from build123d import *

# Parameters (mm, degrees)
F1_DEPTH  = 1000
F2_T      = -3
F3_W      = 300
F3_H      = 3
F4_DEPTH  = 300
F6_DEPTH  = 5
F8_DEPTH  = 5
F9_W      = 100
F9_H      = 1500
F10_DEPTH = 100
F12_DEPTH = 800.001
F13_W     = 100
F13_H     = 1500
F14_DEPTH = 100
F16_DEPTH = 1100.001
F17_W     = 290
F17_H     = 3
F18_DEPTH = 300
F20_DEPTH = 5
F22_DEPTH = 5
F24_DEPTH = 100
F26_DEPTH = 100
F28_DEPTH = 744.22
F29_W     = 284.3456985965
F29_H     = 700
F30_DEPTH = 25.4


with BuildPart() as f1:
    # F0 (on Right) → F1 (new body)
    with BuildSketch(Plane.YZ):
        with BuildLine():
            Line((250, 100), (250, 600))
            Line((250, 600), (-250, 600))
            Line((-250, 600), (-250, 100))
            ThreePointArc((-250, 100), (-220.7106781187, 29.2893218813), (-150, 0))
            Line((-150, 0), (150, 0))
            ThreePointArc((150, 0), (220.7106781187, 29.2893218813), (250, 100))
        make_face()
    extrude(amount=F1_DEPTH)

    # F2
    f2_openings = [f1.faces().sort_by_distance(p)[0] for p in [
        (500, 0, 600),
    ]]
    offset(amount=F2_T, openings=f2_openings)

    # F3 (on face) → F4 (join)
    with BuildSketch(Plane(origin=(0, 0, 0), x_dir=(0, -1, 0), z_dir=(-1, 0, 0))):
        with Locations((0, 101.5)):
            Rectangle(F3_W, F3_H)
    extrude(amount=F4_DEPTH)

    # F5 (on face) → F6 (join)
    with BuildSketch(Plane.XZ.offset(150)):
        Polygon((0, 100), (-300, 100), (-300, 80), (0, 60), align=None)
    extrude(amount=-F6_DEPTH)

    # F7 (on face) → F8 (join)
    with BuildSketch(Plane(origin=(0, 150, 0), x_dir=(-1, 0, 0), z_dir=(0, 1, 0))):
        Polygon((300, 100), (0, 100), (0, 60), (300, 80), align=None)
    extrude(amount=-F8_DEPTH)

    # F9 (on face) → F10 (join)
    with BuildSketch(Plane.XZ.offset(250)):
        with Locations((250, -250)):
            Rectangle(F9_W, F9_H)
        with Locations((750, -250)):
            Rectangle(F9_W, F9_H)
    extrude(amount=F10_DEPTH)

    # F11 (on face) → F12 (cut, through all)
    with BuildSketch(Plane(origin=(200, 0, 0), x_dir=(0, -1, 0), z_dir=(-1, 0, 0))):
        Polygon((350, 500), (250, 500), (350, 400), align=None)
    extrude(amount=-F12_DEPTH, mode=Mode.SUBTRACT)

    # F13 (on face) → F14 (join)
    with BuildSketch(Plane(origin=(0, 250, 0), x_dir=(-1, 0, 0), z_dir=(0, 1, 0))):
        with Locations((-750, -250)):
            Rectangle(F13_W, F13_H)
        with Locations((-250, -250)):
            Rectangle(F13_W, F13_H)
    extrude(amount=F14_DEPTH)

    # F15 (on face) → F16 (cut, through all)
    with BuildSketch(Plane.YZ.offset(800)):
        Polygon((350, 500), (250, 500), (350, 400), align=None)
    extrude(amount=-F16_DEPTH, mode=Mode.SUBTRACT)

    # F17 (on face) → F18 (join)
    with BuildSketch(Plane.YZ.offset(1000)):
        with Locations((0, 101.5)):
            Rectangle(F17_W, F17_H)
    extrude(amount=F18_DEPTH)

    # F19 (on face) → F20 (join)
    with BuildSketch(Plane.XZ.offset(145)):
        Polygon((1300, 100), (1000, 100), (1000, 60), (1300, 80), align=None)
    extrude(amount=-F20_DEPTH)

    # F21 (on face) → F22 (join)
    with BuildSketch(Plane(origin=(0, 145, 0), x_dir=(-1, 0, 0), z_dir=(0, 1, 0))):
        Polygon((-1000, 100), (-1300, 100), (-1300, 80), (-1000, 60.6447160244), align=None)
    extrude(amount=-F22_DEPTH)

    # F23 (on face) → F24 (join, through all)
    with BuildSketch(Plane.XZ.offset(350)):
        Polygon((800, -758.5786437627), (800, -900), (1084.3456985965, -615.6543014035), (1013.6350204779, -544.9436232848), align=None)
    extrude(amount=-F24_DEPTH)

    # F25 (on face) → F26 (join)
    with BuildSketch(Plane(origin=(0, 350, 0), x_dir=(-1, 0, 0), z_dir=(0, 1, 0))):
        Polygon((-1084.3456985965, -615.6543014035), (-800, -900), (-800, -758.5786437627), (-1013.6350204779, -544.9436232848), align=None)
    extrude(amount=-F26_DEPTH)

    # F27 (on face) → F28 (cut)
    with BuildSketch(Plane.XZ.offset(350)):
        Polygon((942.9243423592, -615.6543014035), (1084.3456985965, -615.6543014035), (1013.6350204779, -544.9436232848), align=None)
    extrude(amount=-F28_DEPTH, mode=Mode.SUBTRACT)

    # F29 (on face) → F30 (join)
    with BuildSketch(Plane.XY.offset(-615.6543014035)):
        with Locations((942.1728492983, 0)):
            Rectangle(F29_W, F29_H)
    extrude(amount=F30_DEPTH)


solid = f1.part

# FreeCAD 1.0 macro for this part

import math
import FreeCAD as App
import Part
import Sketcher

V = App.Vector
Q = App.Units.Quantity


def faces_at(feature, points):
    """Names of the faces that lie closest to the given points."""
    faces = feature.Shape.Faces
    near = lambda p: min(range(len(faces)), key=lambda i: faces[i].distToShape(Part.Vertex(*p))[0])
    return sorted({f"Face{near(p) + 1}" for p in points})

doc = App.newDocument("Part")
params = doc.addObject("Spreadsheet::Sheet", "Params")
for row, (alias, value) in enumerate([
    ("sketch1_radius", "100 mm"),
    ("sketch1_width", "500 mm"),
    ("pad1_length", "1000 mm"),
    ("thickness_wall", "3 mm"),
    ("sketch2_width", "300 mm"),
    ("sketch2_height", "3 mm"),
    ("pad2_length", "300 mm"),
    ("sketch3_width", "300 mm"),
    ("sketch3_height", "20 mm"),
    ("sketch3_height2", "40 mm"),
    ("pad3_length", "5 mm"),
    ("sketch4_width", "300 mm"),
    ("sketch4_height", "40 mm"),
    ("sketch4_height2", "20 mm"),
    ("pad4_length", "5 mm"),
    ("sketch5_width", "100 mm"),
    ("sketch5_height", "1500 mm"),
    ("pad5_length", "100 mm"),
    ("sketch6_width", "100 mm"),
    ("sketch7_width", "100 mm"),
    ("sketch7_height", "1500 mm"),
    ("pad6_length", "100 mm"),
    ("sketch8_width", "100 mm"),
    ("sketch9_width", "290 mm"),
    ("sketch9_height", "3 mm"),
    ("pad7_length", "300 mm"),
    ("sketch10_width", "300 mm"),
    ("sketch10_height", "40 mm"),
    ("sketch10_height2", "20 mm"),
    ("pad8_length", "5 mm"),
    ("sketch11_width", "300 mm"),
    ("sketch11_height", "20 mm"),
    ("pad9_length", "5 mm"),
    ("sketch12_length", "100 mm"),
    ("pad10_length", "100 mm"),
    ("sketch13_length", "100 mm"),
    ("pad11_length", "100 mm"),
    ("sketch14_length", "100 mm"),
    ("pocket3_length", "744.22 mm"),
    ("sketch15_height", "700 mm"),
    ("pad12_length", "25.4 mm"),
], start=1):
    params.set(f"A{row}", alias)
    params.set(f"B{row}", "=" + value)
    params.setAlias(f"B{row}", alias)

body = doc.addObject("PartDesign::Body", "Body")

sketch1 = doc.addObject("Sketcher::SketchObject", "Sketch")
body.addObject(sketch1)
sketch1.AttachmentSupport = (doc.YZ_Plane, [""])
sketch1.MapMode = "FlatFace"
sketch1.addGeometry(Part.LineSegment(V(250, 100, 0), V(250, 600, 0)), False)
sketch1.addGeometry(Part.LineSegment(V(250, 600, 0), V(-250, 600, 0)), False)
sketch1.addGeometry(Part.LineSegment(V(-250, 600, 0), V(-250, 100, 0)), False)
sketch1.addGeometry(Part.ArcOfCircle(Part.Circle(V(-150, 100, 0), V(0, 0, 1), 100), math.radians(180), math.radians(270)), False)
sketch1.addGeometry(Part.LineSegment(V(-150, 0, 0), V(150, 0, 0)), False)
sketch1.addGeometry(Part.ArcOfCircle(Part.Circle(V(150, 100, 0), V(0, 0, 1), 100), math.radians(-90), math.radians(0)), False)
sketch1.addConstraint(Sketcher.Constraint("Coincident", 0, 2, 1, 1))
sketch1.addConstraint(Sketcher.Constraint("Coincident", 1, 2, 2, 1))
sketch1.addConstraint(Sketcher.Constraint("Tangent", 2, 2, 3, 1))
sketch1.addConstraint(Sketcher.Constraint("Tangent", 3, 2, 4, 1))
sketch1.addConstraint(Sketcher.Constraint("Tangent", 4, 2, 5, 1))
sketch1.addConstraint(Sketcher.Constraint("Tangent", 5, 2, 0, 1))
sketch1.addConstraint(Sketcher.Constraint("Vertical", 0))
sketch1.addConstraint(Sketcher.Constraint("Horizontal", 1))
sketch1.addConstraint(Sketcher.Constraint("Vertical", 2))
sketch1.addConstraint(Sketcher.Constraint("Horizontal", 4))
sketch1.addConstraint(Sketcher.Constraint("Equal", 3, 5))
sketch1.addConstraint(Sketcher.Constraint("Symmetric", 3, 2, 4, 2, -1, 1))
sketch1.addConstraint(Sketcher.Constraint("Equal", 1, 0))
sketch1.addConstraint(Sketcher.Constraint("Radius", 3, 100.0))
sketch1.addConstraint(Sketcher.Constraint("DistanceX", 1, 2, 1, 1, 500.0))
sketch1.setExpression("Constraints[13]", "Params.sketch1_radius")
sketch1.setExpression("Constraints[14]", "Params.sketch1_width")
pad1 = doc.addObject("PartDesign::Pad", "Pad")
body.addObject(pad1)
pad1.Profile = sketch1
pad1.setExpression("Length", "Params.pad1_length")
doc.recompute()

thickness = doc.addObject("PartDesign::Thickness", "Thickness")
body.addObject(thickness)
thickness.Base = (pad1, faces_at(pad1, [(500, 0, 600)]))
thickness.setExpression("Value", "Params.thickness_wall")
thickness.Reversed = True
thickness.Join = "Arc"

sketch2 = doc.addObject("Sketcher::SketchObject", "Sketch001")
body.addObject(sketch2)
sketch2.AttachmentSupport = (doc.YZ_Plane, [""])
sketch2.MapMode = "FlatFace"
sketch2.addGeometry(Part.LineSegment(V(150, 103, 0), V(150, 100, 0)), False)
sketch2.addGeometry(Part.LineSegment(V(150, 100, 0), V(-150, 100, 0)), False)
sketch2.addGeometry(Part.LineSegment(V(-150, 100, 0), V(-150, 103, 0)), False)
sketch2.addGeometry(Part.LineSegment(V(-150, 103, 0), V(150, 103, 0)), False)
sketch2.addConstraint(Sketcher.Constraint("Coincident", 0, 2, 1, 1))
sketch2.addConstraint(Sketcher.Constraint("Coincident", 1, 2, 2, 1))
sketch2.addConstraint(Sketcher.Constraint("Coincident", 2, 2, 3, 1))
sketch2.addConstraint(Sketcher.Constraint("Coincident", 3, 2, 0, 1))
sketch2.addConstraint(Sketcher.Constraint("Vertical", 0))
sketch2.addConstraint(Sketcher.Constraint("Horizontal", 1))
sketch2.addConstraint(Sketcher.Constraint("Vertical", 2))
sketch2.addConstraint(Sketcher.Constraint("Horizontal", 3))
sketch2.addConstraint(Sketcher.Constraint("DistanceX", 1, 2, 1, 1, 300.0))
sketch2.addConstraint(Sketcher.Constraint("DistanceY", 0, 2, 0, 1, 3.0))
sketch2.addConstraint(Sketcher.Constraint("DistanceX", -1, 1, 0, 2, 150.0))
sketch2.addConstraint(Sketcher.Constraint("DistanceY", -1, 1, 0, 2, 100.0))
sketch2.setExpression("Constraints[8]", "Params.sketch2_width")
sketch2.setExpression("Constraints[9]", "Params.sketch2_height")
pad2 = doc.addObject("PartDesign::Pad", "Pad001")
body.addObject(pad2)
pad2.Profile = sketch2
pad2.setExpression("Length", "Params.pad2_length")
pad2.Reversed = True

sketch3 = doc.addObject("Sketcher::SketchObject", "Sketch002")
body.addObject(sketch3)
sketch3.AttachmentSupport = (doc.XZ_Plane, [""])
sketch3.MapMode = "FlatFace"
sketch3.AttachmentOffset = App.Placement(V(0, 0, 150), App.Rotation())
sketch3.addGeometry(Part.LineSegment(V(0, 100, 0), V(-300, 100, 0)), False)
sketch3.addGeometry(Part.LineSegment(V(-300, 100, 0), V(-300, 80, 0)), False)
sketch3.addGeometry(Part.LineSegment(V(-300, 80, 0), V(0, 60, 0)), False)
sketch3.addGeometry(Part.LineSegment(V(0, 60, 0), V(0, 100, 0)), False)
sketch3.addConstraint(Sketcher.Constraint("Coincident", 0, 2, 1, 1))
sketch3.addConstraint(Sketcher.Constraint("Coincident", 1, 2, 2, 1))
sketch3.addConstraint(Sketcher.Constraint("Coincident", 2, 2, 3, 1))
sketch3.addConstraint(Sketcher.Constraint("Coincident", 3, 2, 0, 1))
sketch3.addConstraint(Sketcher.Constraint("Horizontal", 0))
sketch3.addConstraint(Sketcher.Constraint("Vertical", 1))
sketch3.addConstraint(Sketcher.Constraint("Vertical", 3))
sketch3.addConstraint(Sketcher.Constraint("PointOnObject", 2, 2, -2))
sketch3.addConstraint(Sketcher.Constraint("DistanceX", 0, 2, 0, 1, 300.0))
sketch3.addConstraint(Sketcher.Constraint("DistanceY", 1, 2, 1, 1, 20.0))
sketch3.addConstraint(Sketcher.Constraint("DistanceY", 3, 1, 3, 2, 40.0))
sketch3.addConstraint(Sketcher.Constraint("DistanceY", -1, 1, 0, 2, 100.0))
sketch3.setExpression("Constraints[8]", "Params.sketch3_width")
sketch3.setExpression("Constraints[9]", "Params.sketch3_height")
sketch3.setExpression("Constraints[10]", "Params.sketch3_height2")
pad3 = doc.addObject("PartDesign::Pad", "Pad002")
body.addObject(pad3)
pad3.Profile = sketch3
pad3.setExpression("Length", "Params.pad3_length")
pad3.Reversed = True

sketch4 = doc.addObject("Sketcher::SketchObject", "Sketch003")
body.addObject(sketch4)
sketch4.AttachmentSupport = (doc.XZ_Plane, [""])
sketch4.MapMode = "FlatFace"
sketch4.AttachmentOffset = App.Placement(V(0, 0, -150), App.Rotation())
sketch4.addGeometry(Part.LineSegment(V(-300, 100, 0), V(0, 100, 0)), False)
sketch4.addGeometry(Part.LineSegment(V(0, 100, 0), V(0, 60, 0)), False)
sketch4.addGeometry(Part.LineSegment(V(0, 60, 0), V(-300, 80, 0)), False)
sketch4.addGeometry(Part.LineSegment(V(-300, 80, 0), V(-300, 100, 0)), False)
sketch4.addConstraint(Sketcher.Constraint("Coincident", 0, 2, 1, 1))
sketch4.addConstraint(Sketcher.Constraint("Coincident", 1, 2, 2, 1))
sketch4.addConstraint(Sketcher.Constraint("Coincident", 2, 2, 3, 1))
sketch4.addConstraint(Sketcher.Constraint("Coincident", 3, 2, 0, 1))
sketch4.addConstraint(Sketcher.Constraint("Horizontal", 0))
sketch4.addConstraint(Sketcher.Constraint("Vertical", 1))
sketch4.addConstraint(Sketcher.Constraint("Vertical", 3))
sketch4.addConstraint(Sketcher.Constraint("PointOnObject", 0, 2, -2))
sketch4.addConstraint(Sketcher.Constraint("DistanceX", 0, 1, 0, 2, 300.0))
sketch4.addConstraint(Sketcher.Constraint("DistanceY", 1, 2, 1, 1, 40.0))
sketch4.addConstraint(Sketcher.Constraint("DistanceY", 3, 1, 3, 2, 20.0))
sketch4.addConstraint(Sketcher.Constraint("DistanceY", -1, 1, 0, 2, 100.0))
sketch4.setExpression("Constraints[8]", "Params.sketch4_width")
sketch4.setExpression("Constraints[9]", "Params.sketch4_height")
sketch4.setExpression("Constraints[10]", "Params.sketch4_height2")
pad4 = doc.addObject("PartDesign::Pad", "Pad003")
body.addObject(pad4)
pad4.Profile = sketch4
pad4.setExpression("Length", "Params.pad4_length")

sketch5 = doc.addObject("Sketcher::SketchObject", "Sketch004")
body.addObject(sketch5)
sketch5.AttachmentSupport = (doc.XZ_Plane, [""])
sketch5.MapMode = "FlatFace"
sketch5.AttachmentOffset = App.Placement(V(0, 0, 250), App.Rotation())
sketch5.addGeometry(Part.LineSegment(V(200, 500, 0), V(200, -1000, 0)), False)
sketch5.addGeometry(Part.LineSegment(V(200, -1000, 0), V(300, -1000, 0)), False)
sketch5.addGeometry(Part.LineSegment(V(300, -1000, 0), V(300, 500, 0)), False)
sketch5.addGeometry(Part.LineSegment(V(300, 500, 0), V(200, 500, 0)), False)
sketch5.addGeometry(Part.LineSegment(V(700, 500, 0), V(700, -1000, 0)), False)
sketch5.addGeometry(Part.LineSegment(V(700, -1000, 0), V(800, -1000, 0)), False)
sketch5.addGeometry(Part.LineSegment(V(800, -1000, 0), V(800, 500, 0)), False)
sketch5.addGeometry(Part.LineSegment(V(800, 500, 0), V(700, 500, 0)), False)
sketch5.addConstraint(Sketcher.Constraint("Coincident", 0, 2, 1, 1))
sketch5.addConstraint(Sketcher.Constraint("Coincident", 1, 2, 2, 1))
sketch5.addConstraint(Sketcher.Constraint("Coincident", 2, 2, 3, 1))
sketch5.addConstraint(Sketcher.Constraint("Coincident", 3, 2, 0, 1))
sketch5.addConstraint(Sketcher.Constraint("Coincident", 4, 2, 5, 1))
sketch5.addConstraint(Sketcher.Constraint("Coincident", 5, 2, 6, 1))
sketch5.addConstraint(Sketcher.Constraint("Coincident", 6, 2, 7, 1))
sketch5.addConstraint(Sketcher.Constraint("Coincident", 7, 2, 4, 1))
sketch5.addConstraint(Sketcher.Constraint("Vertical", 0))
sketch5.addConstraint(Sketcher.Constraint("Horizontal", 1))
sketch5.addConstraint(Sketcher.Constraint("Vertical", 2))
sketch5.addConstraint(Sketcher.Constraint("Horizontal", 3))
sketch5.addConstraint(Sketcher.Constraint("Vertical", 4))
sketch5.addConstraint(Sketcher.Constraint("Horizontal", 5))
sketch5.addConstraint(Sketcher.Constraint("Vertical", 6))
sketch5.addConstraint(Sketcher.Constraint("Horizontal", 7))
sketch5.addConstraint(Sketcher.Constraint("Horizontal", 1, 2, 4, 2))
sketch5.addConstraint(Sketcher.Constraint("Horizontal", 3, 2, 6, 2))
sketch5.addConstraint(Sketcher.Constraint("Equal", 3, 5))
sketch5.addConstraint(Sketcher.Constraint("DistanceX", 1, 1, 1, 2, 100.0))
sketch5.addConstraint(Sketcher.Constraint("DistanceY", 0, 2, 0, 1, 1500.0))
sketch5.addConstraint(Sketcher.Constraint("DistanceX", -1, 1, 0, 2, 200.0))
sketch5.addConstraint(Sketcher.Constraint("DistanceY", 0, 2, -1, 1, 1000.0))
sketch5.addConstraint(Sketcher.Constraint("DistanceX", -1, 1, 4, 2, 700.0))
sketch5.setExpression("Constraints[19]", "Params.sketch5_width")
sketch5.setExpression("Constraints[20]", "Params.sketch5_height")
pad5 = doc.addObject("PartDesign::Pad", "Pad004")
body.addObject(pad5)
pad5.Profile = sketch5
pad5.setExpression("Length", "Params.pad5_length")

sketch6 = doc.addObject("Sketcher::SketchObject", "Sketch005")
body.addObject(sketch6)
sketch6.AttachmentSupport = (doc.YZ_Plane, [""])
sketch6.MapMode = "FlatFace"
sketch6.AttachmentOffset = App.Placement(V(0, 0, 200), App.Rotation())
sketch6.addGeometry(Part.LineSegment(V(-350, 500, 0), V(-250, 500, 0)), False)
sketch6.addGeometry(Part.LineSegment(V(-250, 500, 0), V(-350, 400, 0)), False)
sketch6.addGeometry(Part.LineSegment(V(-350, 400, 0), V(-350, 500, 0)), False)
sketch6.addConstraint(Sketcher.Constraint("Coincident", 0, 2, 1, 1))
sketch6.addConstraint(Sketcher.Constraint("Coincident", 1, 2, 2, 1))
sketch6.addConstraint(Sketcher.Constraint("Coincident", 2, 2, 0, 1))
sketch6.addConstraint(Sketcher.Constraint("Horizontal", 0))
sketch6.addConstraint(Sketcher.Constraint("Vertical", 2))
sketch6.addConstraint(Sketcher.Constraint("Equal", 0, 2))
sketch6.addConstraint(Sketcher.Constraint("DistanceX", 0, 1, 0, 2, 100.0))
sketch6.addConstraint(Sketcher.Constraint("DistanceX", 0, 2, -1, 1, 250.0))
sketch6.addConstraint(Sketcher.Constraint("DistanceY", -1, 1, 0, 2, 500.0))
sketch6.setExpression("Constraints[6]", "Params.sketch6_width")
pocket1 = doc.addObject("PartDesign::Pocket", "Pocket")
body.addObject(pocket1)
pocket1.Profile = sketch6
pocket1.Type = "ThroughAll"
pocket1.Reversed = True

sketch7 = doc.addObject("Sketcher::SketchObject", "Sketch006")
body.addObject(sketch7)
sketch7.AttachmentSupport = (doc.XZ_Plane, [""])
sketch7.MapMode = "FlatFace"
sketch7.AttachmentOffset = App.Placement(V(0, 0, -250), App.Rotation())
sketch7.addGeometry(Part.LineSegment(V(800, 500, 0), V(800, -1000, 0)), False)
sketch7.addGeometry(Part.LineSegment(V(800, -1000, 0), V(700, -1000, 0)), False)
sketch7.addGeometry(Part.LineSegment(V(700, -1000, 0), V(700, 500, 0)), False)
sketch7.addGeometry(Part.LineSegment(V(700, 500, 0), V(800, 500, 0)), False)
sketch7.addGeometry(Part.LineSegment(V(300, 500, 0), V(300, -1000, 0)), False)
sketch7.addGeometry(Part.LineSegment(V(300, -1000, 0), V(200, -1000, 0)), False)
sketch7.addGeometry(Part.LineSegment(V(200, -1000, 0), V(200, 500, 0)), False)
sketch7.addGeometry(Part.LineSegment(V(200, 500, 0), V(300, 500, 0)), False)
sketch7.addConstraint(Sketcher.Constraint("Coincident", 0, 2, 1, 1))
sketch7.addConstraint(Sketcher.Constraint("Coincident", 1, 2, 2, 1))
sketch7.addConstraint(Sketcher.Constraint("Coincident", 2, 2, 3, 1))
sketch7.addConstraint(Sketcher.Constraint("Coincident", 3, 2, 0, 1))
sketch7.addConstraint(Sketcher.Constraint("Coincident", 4, 2, 5, 1))
sketch7.addConstraint(Sketcher.Constraint("Coincident", 5, 2, 6, 1))
sketch7.addConstraint(Sketcher.Constraint("Coincident", 6, 2, 7, 1))
sketch7.addConstraint(Sketcher.Constraint("Coincident", 7, 2, 4, 1))
sketch7.addConstraint(Sketcher.Constraint("Vertical", 0))
sketch7.addConstraint(Sketcher.Constraint("Horizontal", 1))
sketch7.addConstraint(Sketcher.Constraint("Vertical", 2))
sketch7.addConstraint(Sketcher.Constraint("Horizontal", 3))
sketch7.addConstraint(Sketcher.Constraint("Vertical", 4))
sketch7.addConstraint(Sketcher.Constraint("Horizontal", 5))
sketch7.addConstraint(Sketcher.Constraint("Vertical", 6))
sketch7.addConstraint(Sketcher.Constraint("Horizontal", 7))
sketch7.addConstraint(Sketcher.Constraint("Horizontal", 1, 2, 4, 2))
sketch7.addConstraint(Sketcher.Constraint("Horizontal", 3, 2, 6, 2))
sketch7.addConstraint(Sketcher.Constraint("Equal", 3, 5))
sketch7.addConstraint(Sketcher.Constraint("DistanceX", 1, 2, 1, 1, 100.0))
sketch7.addConstraint(Sketcher.Constraint("DistanceY", 0, 2, 0, 1, 1500.0))
sketch7.addConstraint(Sketcher.Constraint("DistanceX", -1, 1, 0, 2, 800.0))
sketch7.addConstraint(Sketcher.Constraint("DistanceY", 0, 2, -1, 1, 1000.0))
sketch7.addConstraint(Sketcher.Constraint("DistanceX", -1, 1, 4, 2, 300.0))
sketch7.setExpression("Constraints[19]", "Params.sketch7_width")
sketch7.setExpression("Constraints[20]", "Params.sketch7_height")
pad6 = doc.addObject("PartDesign::Pad", "Pad005")
body.addObject(pad6)
pad6.Profile = sketch7
pad6.setExpression("Length", "Params.pad6_length")
pad6.Reversed = True

sketch8 = doc.addObject("Sketcher::SketchObject", "Sketch007")
body.addObject(sketch8)
sketch8.AttachmentSupport = (doc.YZ_Plane, [""])
sketch8.MapMode = "FlatFace"
sketch8.AttachmentOffset = App.Placement(V(0, 0, 800), App.Rotation())
sketch8.addGeometry(Part.LineSegment(V(350, 500, 0), V(250, 500, 0)), False)
sketch8.addGeometry(Part.LineSegment(V(250, 500, 0), V(350, 400, 0)), False)
sketch8.addGeometry(Part.LineSegment(V(350, 400, 0), V(350, 500, 0)), False)
sketch8.addConstraint(Sketcher.Constraint("Coincident", 0, 2, 1, 1))
sketch8.addConstraint(Sketcher.Constraint("Coincident", 1, 2, 2, 1))
sketch8.addConstraint(Sketcher.Constraint("Coincident", 2, 2, 0, 1))
sketch8.addConstraint(Sketcher.Constraint("Horizontal", 0))
sketch8.addConstraint(Sketcher.Constraint("Vertical", 2))
sketch8.addConstraint(Sketcher.Constraint("Equal", 0, 2))
sketch8.addConstraint(Sketcher.Constraint("DistanceX", 0, 2, 0, 1, 100.0))
sketch8.addConstraint(Sketcher.Constraint("DistanceX", -1, 1, 0, 2, 250.0))
sketch8.addConstraint(Sketcher.Constraint("DistanceY", -1, 1, 0, 2, 500.0))
sketch8.setExpression("Constraints[6]", "Params.sketch8_width")
pocket2 = doc.addObject("PartDesign::Pocket", "Pocket001")
body.addObject(pocket2)
pocket2.Profile = sketch8
pocket2.Type = "ThroughAll"

sketch9 = doc.addObject("Sketcher::SketchObject", "Sketch008")
body.addObject(sketch9)
sketch9.AttachmentSupport = (doc.YZ_Plane, [""])
sketch9.MapMode = "FlatFace"
sketch9.AttachmentOffset = App.Placement(V(0, 0, 1000), App.Rotation())
sketch9.addGeometry(Part.LineSegment(V(-145, 103, 0), V(-145, 100, 0)), False)
sketch9.addGeometry(Part.LineSegment(V(-145, 100, 0), V(145, 100, 0)), False)
sketch9.addGeometry(Part.LineSegment(V(145, 100, 0), V(145, 103, 0)), False)
sketch9.addGeometry(Part.LineSegment(V(145, 103, 0), V(-145, 103, 0)), False)
sketch9.addConstraint(Sketcher.Constraint("Coincident", 0, 2, 1, 1))
sketch9.addConstraint(Sketcher.Constraint("Coincident", 1, 2, 2, 1))
sketch9.addConstraint(Sketcher.Constraint("Coincident", 2, 2, 3, 1))
sketch9.addConstraint(Sketcher.Constraint("Coincident", 3, 2, 0, 1))
sketch9.addConstraint(Sketcher.Constraint("Vertical", 0))
sketch9.addConstraint(Sketcher.Constraint("Horizontal", 1))
sketch9.addConstraint(Sketcher.Constraint("Vertical", 2))
sketch9.addConstraint(Sketcher.Constraint("Horizontal", 3))
sketch9.addConstraint(Sketcher.Constraint("DistanceX", 1, 1, 1, 2, 290.0))
sketch9.addConstraint(Sketcher.Constraint("DistanceY", 0, 2, 0, 1, 3.0))
sketch9.addConstraint(Sketcher.Constraint("DistanceX", 0, 2, -1, 1, 145.0))
sketch9.addConstraint(Sketcher.Constraint("DistanceY", -1, 1, 0, 2, 100.0))
sketch9.setExpression("Constraints[8]", "Params.sketch9_width")
sketch9.setExpression("Constraints[9]", "Params.sketch9_height")
pad7 = doc.addObject("PartDesign::Pad", "Pad006")
body.addObject(pad7)
pad7.Profile = sketch9
pad7.setExpression("Length", "Params.pad7_length")

sketch10 = doc.addObject("Sketcher::SketchObject", "Sketch009")
body.addObject(sketch10)
sketch10.AttachmentSupport = (doc.XZ_Plane, [""])
sketch10.MapMode = "FlatFace"
sketch10.AttachmentOffset = App.Placement(V(0, 0, 145), App.Rotation())
sketch10.addGeometry(Part.LineSegment(V(1300, 100, 0), V(1000, 100, 0)), False)
sketch10.addGeometry(Part.LineSegment(V(1000, 100, 0), V(1000, 60, 0)), False)
sketch10.addGeometry(Part.LineSegment(V(1000, 60, 0), V(1300, 80, 0)), False)
sketch10.addGeometry(Part.LineSegment(V(1300, 80, 0), V(1300, 100, 0)), False)
sketch10.addConstraint(Sketcher.Constraint("Coincident", 0, 2, 1, 1))
sketch10.addConstraint(Sketcher.Constraint("Coincident", 1, 2, 2, 1))
sketch10.addConstraint(Sketcher.Constraint("Coincident", 2, 2, 3, 1))
sketch10.addConstraint(Sketcher.Constraint("Coincident", 3, 2, 0, 1))
sketch10.addConstraint(Sketcher.Constraint("Horizontal", 0))
sketch10.addConstraint(Sketcher.Constraint("Vertical", 1))
sketch10.addConstraint(Sketcher.Constraint("Vertical", 3))
sketch10.addConstraint(Sketcher.Constraint("DistanceX", 0, 2, 0, 1, 300.0))
sketch10.addConstraint(Sketcher.Constraint("DistanceY", 1, 2, 1, 1, 40.0))
sketch10.addConstraint(Sketcher.Constraint("DistanceY", 3, 1, 3, 2, 20.0))
sketch10.addConstraint(Sketcher.Constraint("DistanceX", -1, 1, 0, 2, 1000.0))
sketch10.addConstraint(Sketcher.Constraint("DistanceY", -1, 1, 0, 2, 100.0))
sketch10.setExpression("Constraints[7]", "Params.sketch10_width")
sketch10.setExpression("Constraints[8]", "Params.sketch10_height")
sketch10.setExpression("Constraints[9]", "Params.sketch10_height2")
pad8 = doc.addObject("PartDesign::Pad", "Pad007")
body.addObject(pad8)
pad8.Profile = sketch10
pad8.setExpression("Length", "Params.pad8_length")
pad8.Reversed = True

sketch11 = doc.addObject("Sketcher::SketchObject", "Sketch010")
body.addObject(sketch11)
sketch11.AttachmentSupport = (doc.XZ_Plane, [""])
sketch11.MapMode = "FlatFace"
sketch11.AttachmentOffset = App.Placement(V(0, 0, -145), App.Rotation())
sketch11.addGeometry(Part.LineSegment(V(1000, 100, 0), V(1300, 100, 0)), False)
sketch11.addGeometry(Part.LineSegment(V(1300, 100, 0), V(1300, 80, 0)), False)
sketch11.addGeometry(Part.LineSegment(V(1300, 80, 0), V(1000, 61, 0)), False)
sketch11.addGeometry(Part.LineSegment(V(1000, 61, 0), V(1000, 100, 0)), False)
sketch11.addConstraint(Sketcher.Constraint("Coincident", 0, 2, 1, 1))
sketch11.addConstraint(Sketcher.Constraint("Coincident", 1, 2, 2, 1))
sketch11.addConstraint(Sketcher.Constraint("Coincident", 2, 2, 3, 1))
sketch11.addConstraint(Sketcher.Constraint("Coincident", 3, 2, 0, 1))
sketch11.addConstraint(Sketcher.Constraint("Horizontal", 0))
sketch11.addConstraint(Sketcher.Constraint("Vertical", 1))
sketch11.addConstraint(Sketcher.Constraint("Vertical", 3))
sketch11.addConstraint(Sketcher.Constraint("DistanceX", 0, 1, 0, 2, 300.0))
sketch11.addConstraint(Sketcher.Constraint("DistanceY", 1, 2, 1, 1, 20.0))
sketch11.addConstraint(Sketcher.Constraint("DistanceX", -1, 1, 0, 2, 1300.0))
sketch11.addConstraint(Sketcher.Constraint("DistanceY", -1, 1, 0, 2, 100.0))
sketch11.addConstraint(Sketcher.Constraint("Distance", 2, 300.62373))
sketch11.setExpression("Constraints[7]", "Params.sketch11_width")
sketch11.setExpression("Constraints[8]", "Params.sketch11_height")
pad9 = doc.addObject("PartDesign::Pad", "Pad008")
body.addObject(pad9)
pad9.Profile = sketch11
pad9.setExpression("Length", "Params.pad9_length")

sketch12 = doc.addObject("Sketcher::SketchObject", "Sketch011")
body.addObject(sketch12)
sketch12.AttachmentSupport = (doc.XZ_Plane, [""])
sketch12.MapMode = "FlatFace"
sketch12.AttachmentOffset = App.Placement(V(0, 0, 350), App.Rotation())
sketch12.addGeometry(Part.LineSegment(V(800, -759, 0), V(800, -900, 0)), False)
sketch12.addGeometry(Part.LineSegment(V(800, -900, 0), V(1084, -616, 0)), False)
sketch12.addGeometry(Part.LineSegment(V(1084, -616, 0), V(1014, -545, 0)), False)
sketch12.addGeometry(Part.LineSegment(V(1014, -545, 0), V(800, -759, 0)), False)
sketch12.addConstraint(Sketcher.Constraint("Coincident", 0, 2, 1, 1))
sketch12.addConstraint(Sketcher.Constraint("Coincident", 1, 2, 2, 1))
sketch12.addConstraint(Sketcher.Constraint("Coincident", 2, 2, 3, 1))
sketch12.addConstraint(Sketcher.Constraint("Coincident", 3, 2, 0, 1))
sketch12.addConstraint(Sketcher.Constraint("Vertical", 0))
sketch12.addConstraint(Sketcher.Constraint("Perpendicular", 1, 2))
sketch12.addConstraint(Sketcher.Constraint("Perpendicular", 2, 3))
sketch12.addConstraint(Sketcher.Constraint("Angle", 1, Q("45 deg")))
sketch12.addConstraint(Sketcher.Constraint("Distance", 2, 100.0))
sketch12.addConstraint(Sketcher.Constraint("DistanceX", -1, 1, 0, 2, 800.0))
sketch12.addConstraint(Sketcher.Constraint("DistanceY", 0, 2, -1, 1, 900.0))
sketch12.addConstraint(Sketcher.Constraint("DistanceX", -1, 1, 1, 2, 1084.345699))
sketch12.setExpression("Constraints[8]", "Params.sketch12_length")
pad10 = doc.addObject("PartDesign::Pad", "Pad009")
body.addObject(pad10)
pad10.Profile = sketch12
pad10.setExpression("Length", "Params.pad10_length")
pad10.Reversed = True

sketch13 = doc.addObject("Sketcher::SketchObject", "Sketch012")
body.addObject(sketch13)
sketch13.AttachmentSupport = (doc.XZ_Plane, [""])
sketch13.MapMode = "FlatFace"
sketch13.AttachmentOffset = App.Placement(V(0, 0, -350), App.Rotation())
sketch13.addGeometry(Part.LineSegment(V(1084, -616, 0), V(800, -900, 0)), False)
sketch13.addGeometry(Part.LineSegment(V(800, -900, 0), V(800, -759, 0)), False)
sketch13.addGeometry(Part.LineSegment(V(800, -759, 0), V(1014, -545, 0)), False)
sketch13.addGeometry(Part.LineSegment(V(1014, -545, 0), V(1084, -616, 0)), False)
sketch13.addConstraint(Sketcher.Constraint("Coincident", 0, 2, 1, 1))
sketch13.addConstraint(Sketcher.Constraint("Coincident", 1, 2, 2, 1))
sketch13.addConstraint(Sketcher.Constraint("Coincident", 2, 2, 3, 1))
sketch13.addConstraint(Sketcher.Constraint("Coincident", 3, 2, 0, 1))
sketch13.addConstraint(Sketcher.Constraint("Vertical", 1))
sketch13.addConstraint(Sketcher.Constraint("Parallel", 0, 2))
sketch13.addConstraint(Sketcher.Constraint("Perpendicular", 2, 3))
sketch13.addConstraint(Sketcher.Constraint("Angle", 0, Q("-135 deg")))
sketch13.addConstraint(Sketcher.Constraint("Distance", 3, 100.0))
sketch13.addConstraint(Sketcher.Constraint("DistanceX", -1, 1, 0, 2, 800.0))
sketch13.addConstraint(Sketcher.Constraint("DistanceY", 0, 2, -1, 1, 900.0))
sketch13.addConstraint(Sketcher.Constraint("DistanceX", -1, 1, 3, 2, 1084.345699))
sketch13.setExpression("Constraints[8]", "Params.sketch13_length")
pad11 = doc.addObject("PartDesign::Pad", "Pad010")
body.addObject(pad11)
pad11.Profile = sketch13
pad11.setExpression("Length", "Params.pad11_length")

sketch14 = doc.addObject("Sketcher::SketchObject", "Sketch013")
body.addObject(sketch14)
sketch14.AttachmentSupport = (doc.XZ_Plane, [""])
sketch14.MapMode = "FlatFace"
sketch14.AttachmentOffset = App.Placement(V(0, 0, 350), App.Rotation())
sketch14.addGeometry(Part.LineSegment(V(943, -616, 0), V(1084, -616, 0)), False)
sketch14.addGeometry(Part.LineSegment(V(1084, -616, 0), V(1014, -545, 0)), False)
sketch14.addGeometry(Part.LineSegment(V(1014, -545, 0), V(943, -616, 0)), False)
sketch14.addConstraint(Sketcher.Constraint("Coincident", 0, 2, 1, 1))
sketch14.addConstraint(Sketcher.Constraint("Coincident", 1, 2, 2, 1))
sketch14.addConstraint(Sketcher.Constraint("Coincident", 2, 2, 0, 1))
sketch14.addConstraint(Sketcher.Constraint("Horizontal", 0))
sketch14.addConstraint(Sketcher.Constraint("Perpendicular", 1, 2))
sketch14.addConstraint(Sketcher.Constraint("Equal", 1, 2))
sketch14.addConstraint(Sketcher.Constraint("Distance", 1, 100.0))
sketch14.addConstraint(Sketcher.Constraint("DistanceX", -1, 1, 0, 2, 1084.345699))
sketch14.addConstraint(Sketcher.Constraint("DistanceY", 0, 2, -1, 1, 615.654301))
sketch14.setExpression("Constraints[6]", "Params.sketch14_length")
pocket3 = doc.addObject("PartDesign::Pocket", "Pocket002")
body.addObject(pocket3)
pocket3.Profile = sketch14
pocket3.setExpression("Length", "Params.pocket3_length")

sketch15 = doc.addObject("Sketcher::SketchObject", "Sketch014")
body.addObject(sketch15)
sketch15.AttachmentSupport = (doc.XY_Plane, [""])
sketch15.MapMode = "FlatFace"
sketch15.AttachmentOffset = App.Placement(V(0, 0, -615.654301), App.Rotation())
sketch15.addGeometry(Part.LineSegment(V(800, 350, 0), V(800, -350, 0)), False)
sketch15.addGeometry(Part.LineSegment(V(800, -350, 0), V(1084, -350, 0)), False)
sketch15.addGeometry(Part.LineSegment(V(1084, -350, 0), V(1084, 350, 0)), False)
sketch15.addGeometry(Part.LineSegment(V(1084, 350, 0), V(800, 350, 0)), False)
sketch15.addConstraint(Sketcher.Constraint("Coincident", 0, 2, 1, 1))
sketch15.addConstraint(Sketcher.Constraint("Coincident", 1, 2, 2, 1))
sketch15.addConstraint(Sketcher.Constraint("Coincident", 2, 2, 3, 1))
sketch15.addConstraint(Sketcher.Constraint("Coincident", 3, 2, 0, 1))
sketch15.addConstraint(Sketcher.Constraint("Vertical", 0))
sketch15.addConstraint(Sketcher.Constraint("Horizontal", 1))
sketch15.addConstraint(Sketcher.Constraint("Vertical", 2))
sketch15.addConstraint(Sketcher.Constraint("Horizontal", 3))
sketch15.addConstraint(Sketcher.Constraint("DistanceY", 0, 2, 0, 1, 700.0))
sketch15.addConstraint(Sketcher.Constraint("DistanceX", -1, 1, 0, 2, 800.0))
sketch15.addConstraint(Sketcher.Constraint("DistanceY", 0, 2, -1, 1, 350.0))
sketch15.addConstraint(Sketcher.Constraint("DistanceX", 1, 1, 1, 2, 284.345699))
sketch15.setExpression("Constraints[8]", "Params.sketch15_height")
pad12 = doc.addObject("PartDesign::Pad", "Pad011")
body.addObject(pad12)
pad12.Profile = sketch15
pad12.setExpression("Length", "Params.pad12_length")

doc.recompute()
